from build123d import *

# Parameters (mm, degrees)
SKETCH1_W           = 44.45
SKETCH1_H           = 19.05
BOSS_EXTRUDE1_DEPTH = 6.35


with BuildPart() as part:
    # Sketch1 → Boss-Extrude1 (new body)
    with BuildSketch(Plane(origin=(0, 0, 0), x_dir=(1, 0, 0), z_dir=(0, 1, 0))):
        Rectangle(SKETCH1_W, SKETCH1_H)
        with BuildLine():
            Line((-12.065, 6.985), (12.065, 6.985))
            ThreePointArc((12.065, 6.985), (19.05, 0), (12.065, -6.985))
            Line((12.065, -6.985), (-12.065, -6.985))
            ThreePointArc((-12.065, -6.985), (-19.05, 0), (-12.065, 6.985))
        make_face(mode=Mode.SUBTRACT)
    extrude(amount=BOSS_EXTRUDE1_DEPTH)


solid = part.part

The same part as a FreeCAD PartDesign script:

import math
import FreeCAD as App
import Part
import Sketcher
Q = App.Units.Quantity

doc = App.newDocument("Part")
body = doc.addObject("PartDesign::Body", "Body")

# Sketch on XZ plane
sketch1 = body.newObject("Sketcher::SketchObject", "Sketch")
sketch1.AttachmentSupport = (doc.getObject("XZ_Plane"), [""])
sketch1.MapMode = "FlatFace"
sketch1.addGeometry([
    Part.LineSegment(App.Vector(-22, -10, 0), App.Vector(-22, 10, 0)),  # 0
    Part.LineSegment(App.Vector(-22, 10, 0), App.Vector(22, 10, 0)),  # 1
    Part.LineSegment(App.Vector(22, 10, 0), App.Vector(22, -10, 0)),  # 2
    Part.LineSegment(App.Vector(22, -10, 0), App.Vector(-22, -10, 0)),  # 3
    Part.ArcOfCircle(Part.Circle(App.Vector(-12, 0, 0), App.Vector(0, 0, 1), 7), math.radians(90), math.radians(270)),  # 4
    Part.LineSegment(App.Vector(-12, -7, 0), App.Vector(12, -7, 0)),  # 5
    Part.ArcOfCircle(Part.Circle(App.Vector(12, 0, 0), App.Vector(0, 0, 1), 7), math.radians(-90), math.radians(90)),  # 6
    Part.LineSegment(App.Vector(12, 7, 0), App.Vector(-12, 7, 0)),  # 7
], False)
sketch1.addConstraint([
    Sketcher.Constraint("Coincident", 0, 2, 1, 1),
    Sketcher.Constraint("Coincident", 1, 2, 2, 1),
    Sketcher.Constraint("Coincident", 2, 2, 3, 1),
    Sketcher.Constraint("Coincident", 3, 2, 0, 1),
    Sketcher.Constraint("Tangent", 4, 2, 5, 1),
    Sketcher.Constraint("Tangent", 5, 2, 6, 1),
    Sketcher.Constraint("Tangent", 6, 2, 7, 1),
    Sketcher.Constraint("Tangent", 7, 2, 4, 1),
    Sketcher.Constraint("Vertical", 0),
    Sketcher.Constraint("Horizontal", 1),
    Sketcher.Constraint("Vertical", 2),
    Sketcher.Constraint("Horizontal", 3),
    Sketcher.Constraint("Horizontal", 5),
    Sketcher.Constraint("Horizontal", 7),
    Sketcher.Constraint("Symmetric", 4, 3, 6, 3, -1, 1),
    Sketcher.Constraint("Symmetric", 0, 2, 2, 2, -1, 1),
    Sketcher.Constraint("Radius", 4, Q("0.275 in")),
    Sketcher.Constraint("DistanceX", 1, 1, 1, 2, Q("1.75 in")),
    Sketcher.Constraint("DistanceX", 5, 1, 5, 2, Q("0.95 in")),
    Sketcher.Constraint("DistanceY", 0, 1, 0, 2, Q("0.75 in")),
])
pad1 = body.newObject("PartDesign::Pad", "Pad")
pad1.Profile = sketch1
pad1.Length = Q("0.25 in")
pad1.Reversed = True

doc.recompute()
